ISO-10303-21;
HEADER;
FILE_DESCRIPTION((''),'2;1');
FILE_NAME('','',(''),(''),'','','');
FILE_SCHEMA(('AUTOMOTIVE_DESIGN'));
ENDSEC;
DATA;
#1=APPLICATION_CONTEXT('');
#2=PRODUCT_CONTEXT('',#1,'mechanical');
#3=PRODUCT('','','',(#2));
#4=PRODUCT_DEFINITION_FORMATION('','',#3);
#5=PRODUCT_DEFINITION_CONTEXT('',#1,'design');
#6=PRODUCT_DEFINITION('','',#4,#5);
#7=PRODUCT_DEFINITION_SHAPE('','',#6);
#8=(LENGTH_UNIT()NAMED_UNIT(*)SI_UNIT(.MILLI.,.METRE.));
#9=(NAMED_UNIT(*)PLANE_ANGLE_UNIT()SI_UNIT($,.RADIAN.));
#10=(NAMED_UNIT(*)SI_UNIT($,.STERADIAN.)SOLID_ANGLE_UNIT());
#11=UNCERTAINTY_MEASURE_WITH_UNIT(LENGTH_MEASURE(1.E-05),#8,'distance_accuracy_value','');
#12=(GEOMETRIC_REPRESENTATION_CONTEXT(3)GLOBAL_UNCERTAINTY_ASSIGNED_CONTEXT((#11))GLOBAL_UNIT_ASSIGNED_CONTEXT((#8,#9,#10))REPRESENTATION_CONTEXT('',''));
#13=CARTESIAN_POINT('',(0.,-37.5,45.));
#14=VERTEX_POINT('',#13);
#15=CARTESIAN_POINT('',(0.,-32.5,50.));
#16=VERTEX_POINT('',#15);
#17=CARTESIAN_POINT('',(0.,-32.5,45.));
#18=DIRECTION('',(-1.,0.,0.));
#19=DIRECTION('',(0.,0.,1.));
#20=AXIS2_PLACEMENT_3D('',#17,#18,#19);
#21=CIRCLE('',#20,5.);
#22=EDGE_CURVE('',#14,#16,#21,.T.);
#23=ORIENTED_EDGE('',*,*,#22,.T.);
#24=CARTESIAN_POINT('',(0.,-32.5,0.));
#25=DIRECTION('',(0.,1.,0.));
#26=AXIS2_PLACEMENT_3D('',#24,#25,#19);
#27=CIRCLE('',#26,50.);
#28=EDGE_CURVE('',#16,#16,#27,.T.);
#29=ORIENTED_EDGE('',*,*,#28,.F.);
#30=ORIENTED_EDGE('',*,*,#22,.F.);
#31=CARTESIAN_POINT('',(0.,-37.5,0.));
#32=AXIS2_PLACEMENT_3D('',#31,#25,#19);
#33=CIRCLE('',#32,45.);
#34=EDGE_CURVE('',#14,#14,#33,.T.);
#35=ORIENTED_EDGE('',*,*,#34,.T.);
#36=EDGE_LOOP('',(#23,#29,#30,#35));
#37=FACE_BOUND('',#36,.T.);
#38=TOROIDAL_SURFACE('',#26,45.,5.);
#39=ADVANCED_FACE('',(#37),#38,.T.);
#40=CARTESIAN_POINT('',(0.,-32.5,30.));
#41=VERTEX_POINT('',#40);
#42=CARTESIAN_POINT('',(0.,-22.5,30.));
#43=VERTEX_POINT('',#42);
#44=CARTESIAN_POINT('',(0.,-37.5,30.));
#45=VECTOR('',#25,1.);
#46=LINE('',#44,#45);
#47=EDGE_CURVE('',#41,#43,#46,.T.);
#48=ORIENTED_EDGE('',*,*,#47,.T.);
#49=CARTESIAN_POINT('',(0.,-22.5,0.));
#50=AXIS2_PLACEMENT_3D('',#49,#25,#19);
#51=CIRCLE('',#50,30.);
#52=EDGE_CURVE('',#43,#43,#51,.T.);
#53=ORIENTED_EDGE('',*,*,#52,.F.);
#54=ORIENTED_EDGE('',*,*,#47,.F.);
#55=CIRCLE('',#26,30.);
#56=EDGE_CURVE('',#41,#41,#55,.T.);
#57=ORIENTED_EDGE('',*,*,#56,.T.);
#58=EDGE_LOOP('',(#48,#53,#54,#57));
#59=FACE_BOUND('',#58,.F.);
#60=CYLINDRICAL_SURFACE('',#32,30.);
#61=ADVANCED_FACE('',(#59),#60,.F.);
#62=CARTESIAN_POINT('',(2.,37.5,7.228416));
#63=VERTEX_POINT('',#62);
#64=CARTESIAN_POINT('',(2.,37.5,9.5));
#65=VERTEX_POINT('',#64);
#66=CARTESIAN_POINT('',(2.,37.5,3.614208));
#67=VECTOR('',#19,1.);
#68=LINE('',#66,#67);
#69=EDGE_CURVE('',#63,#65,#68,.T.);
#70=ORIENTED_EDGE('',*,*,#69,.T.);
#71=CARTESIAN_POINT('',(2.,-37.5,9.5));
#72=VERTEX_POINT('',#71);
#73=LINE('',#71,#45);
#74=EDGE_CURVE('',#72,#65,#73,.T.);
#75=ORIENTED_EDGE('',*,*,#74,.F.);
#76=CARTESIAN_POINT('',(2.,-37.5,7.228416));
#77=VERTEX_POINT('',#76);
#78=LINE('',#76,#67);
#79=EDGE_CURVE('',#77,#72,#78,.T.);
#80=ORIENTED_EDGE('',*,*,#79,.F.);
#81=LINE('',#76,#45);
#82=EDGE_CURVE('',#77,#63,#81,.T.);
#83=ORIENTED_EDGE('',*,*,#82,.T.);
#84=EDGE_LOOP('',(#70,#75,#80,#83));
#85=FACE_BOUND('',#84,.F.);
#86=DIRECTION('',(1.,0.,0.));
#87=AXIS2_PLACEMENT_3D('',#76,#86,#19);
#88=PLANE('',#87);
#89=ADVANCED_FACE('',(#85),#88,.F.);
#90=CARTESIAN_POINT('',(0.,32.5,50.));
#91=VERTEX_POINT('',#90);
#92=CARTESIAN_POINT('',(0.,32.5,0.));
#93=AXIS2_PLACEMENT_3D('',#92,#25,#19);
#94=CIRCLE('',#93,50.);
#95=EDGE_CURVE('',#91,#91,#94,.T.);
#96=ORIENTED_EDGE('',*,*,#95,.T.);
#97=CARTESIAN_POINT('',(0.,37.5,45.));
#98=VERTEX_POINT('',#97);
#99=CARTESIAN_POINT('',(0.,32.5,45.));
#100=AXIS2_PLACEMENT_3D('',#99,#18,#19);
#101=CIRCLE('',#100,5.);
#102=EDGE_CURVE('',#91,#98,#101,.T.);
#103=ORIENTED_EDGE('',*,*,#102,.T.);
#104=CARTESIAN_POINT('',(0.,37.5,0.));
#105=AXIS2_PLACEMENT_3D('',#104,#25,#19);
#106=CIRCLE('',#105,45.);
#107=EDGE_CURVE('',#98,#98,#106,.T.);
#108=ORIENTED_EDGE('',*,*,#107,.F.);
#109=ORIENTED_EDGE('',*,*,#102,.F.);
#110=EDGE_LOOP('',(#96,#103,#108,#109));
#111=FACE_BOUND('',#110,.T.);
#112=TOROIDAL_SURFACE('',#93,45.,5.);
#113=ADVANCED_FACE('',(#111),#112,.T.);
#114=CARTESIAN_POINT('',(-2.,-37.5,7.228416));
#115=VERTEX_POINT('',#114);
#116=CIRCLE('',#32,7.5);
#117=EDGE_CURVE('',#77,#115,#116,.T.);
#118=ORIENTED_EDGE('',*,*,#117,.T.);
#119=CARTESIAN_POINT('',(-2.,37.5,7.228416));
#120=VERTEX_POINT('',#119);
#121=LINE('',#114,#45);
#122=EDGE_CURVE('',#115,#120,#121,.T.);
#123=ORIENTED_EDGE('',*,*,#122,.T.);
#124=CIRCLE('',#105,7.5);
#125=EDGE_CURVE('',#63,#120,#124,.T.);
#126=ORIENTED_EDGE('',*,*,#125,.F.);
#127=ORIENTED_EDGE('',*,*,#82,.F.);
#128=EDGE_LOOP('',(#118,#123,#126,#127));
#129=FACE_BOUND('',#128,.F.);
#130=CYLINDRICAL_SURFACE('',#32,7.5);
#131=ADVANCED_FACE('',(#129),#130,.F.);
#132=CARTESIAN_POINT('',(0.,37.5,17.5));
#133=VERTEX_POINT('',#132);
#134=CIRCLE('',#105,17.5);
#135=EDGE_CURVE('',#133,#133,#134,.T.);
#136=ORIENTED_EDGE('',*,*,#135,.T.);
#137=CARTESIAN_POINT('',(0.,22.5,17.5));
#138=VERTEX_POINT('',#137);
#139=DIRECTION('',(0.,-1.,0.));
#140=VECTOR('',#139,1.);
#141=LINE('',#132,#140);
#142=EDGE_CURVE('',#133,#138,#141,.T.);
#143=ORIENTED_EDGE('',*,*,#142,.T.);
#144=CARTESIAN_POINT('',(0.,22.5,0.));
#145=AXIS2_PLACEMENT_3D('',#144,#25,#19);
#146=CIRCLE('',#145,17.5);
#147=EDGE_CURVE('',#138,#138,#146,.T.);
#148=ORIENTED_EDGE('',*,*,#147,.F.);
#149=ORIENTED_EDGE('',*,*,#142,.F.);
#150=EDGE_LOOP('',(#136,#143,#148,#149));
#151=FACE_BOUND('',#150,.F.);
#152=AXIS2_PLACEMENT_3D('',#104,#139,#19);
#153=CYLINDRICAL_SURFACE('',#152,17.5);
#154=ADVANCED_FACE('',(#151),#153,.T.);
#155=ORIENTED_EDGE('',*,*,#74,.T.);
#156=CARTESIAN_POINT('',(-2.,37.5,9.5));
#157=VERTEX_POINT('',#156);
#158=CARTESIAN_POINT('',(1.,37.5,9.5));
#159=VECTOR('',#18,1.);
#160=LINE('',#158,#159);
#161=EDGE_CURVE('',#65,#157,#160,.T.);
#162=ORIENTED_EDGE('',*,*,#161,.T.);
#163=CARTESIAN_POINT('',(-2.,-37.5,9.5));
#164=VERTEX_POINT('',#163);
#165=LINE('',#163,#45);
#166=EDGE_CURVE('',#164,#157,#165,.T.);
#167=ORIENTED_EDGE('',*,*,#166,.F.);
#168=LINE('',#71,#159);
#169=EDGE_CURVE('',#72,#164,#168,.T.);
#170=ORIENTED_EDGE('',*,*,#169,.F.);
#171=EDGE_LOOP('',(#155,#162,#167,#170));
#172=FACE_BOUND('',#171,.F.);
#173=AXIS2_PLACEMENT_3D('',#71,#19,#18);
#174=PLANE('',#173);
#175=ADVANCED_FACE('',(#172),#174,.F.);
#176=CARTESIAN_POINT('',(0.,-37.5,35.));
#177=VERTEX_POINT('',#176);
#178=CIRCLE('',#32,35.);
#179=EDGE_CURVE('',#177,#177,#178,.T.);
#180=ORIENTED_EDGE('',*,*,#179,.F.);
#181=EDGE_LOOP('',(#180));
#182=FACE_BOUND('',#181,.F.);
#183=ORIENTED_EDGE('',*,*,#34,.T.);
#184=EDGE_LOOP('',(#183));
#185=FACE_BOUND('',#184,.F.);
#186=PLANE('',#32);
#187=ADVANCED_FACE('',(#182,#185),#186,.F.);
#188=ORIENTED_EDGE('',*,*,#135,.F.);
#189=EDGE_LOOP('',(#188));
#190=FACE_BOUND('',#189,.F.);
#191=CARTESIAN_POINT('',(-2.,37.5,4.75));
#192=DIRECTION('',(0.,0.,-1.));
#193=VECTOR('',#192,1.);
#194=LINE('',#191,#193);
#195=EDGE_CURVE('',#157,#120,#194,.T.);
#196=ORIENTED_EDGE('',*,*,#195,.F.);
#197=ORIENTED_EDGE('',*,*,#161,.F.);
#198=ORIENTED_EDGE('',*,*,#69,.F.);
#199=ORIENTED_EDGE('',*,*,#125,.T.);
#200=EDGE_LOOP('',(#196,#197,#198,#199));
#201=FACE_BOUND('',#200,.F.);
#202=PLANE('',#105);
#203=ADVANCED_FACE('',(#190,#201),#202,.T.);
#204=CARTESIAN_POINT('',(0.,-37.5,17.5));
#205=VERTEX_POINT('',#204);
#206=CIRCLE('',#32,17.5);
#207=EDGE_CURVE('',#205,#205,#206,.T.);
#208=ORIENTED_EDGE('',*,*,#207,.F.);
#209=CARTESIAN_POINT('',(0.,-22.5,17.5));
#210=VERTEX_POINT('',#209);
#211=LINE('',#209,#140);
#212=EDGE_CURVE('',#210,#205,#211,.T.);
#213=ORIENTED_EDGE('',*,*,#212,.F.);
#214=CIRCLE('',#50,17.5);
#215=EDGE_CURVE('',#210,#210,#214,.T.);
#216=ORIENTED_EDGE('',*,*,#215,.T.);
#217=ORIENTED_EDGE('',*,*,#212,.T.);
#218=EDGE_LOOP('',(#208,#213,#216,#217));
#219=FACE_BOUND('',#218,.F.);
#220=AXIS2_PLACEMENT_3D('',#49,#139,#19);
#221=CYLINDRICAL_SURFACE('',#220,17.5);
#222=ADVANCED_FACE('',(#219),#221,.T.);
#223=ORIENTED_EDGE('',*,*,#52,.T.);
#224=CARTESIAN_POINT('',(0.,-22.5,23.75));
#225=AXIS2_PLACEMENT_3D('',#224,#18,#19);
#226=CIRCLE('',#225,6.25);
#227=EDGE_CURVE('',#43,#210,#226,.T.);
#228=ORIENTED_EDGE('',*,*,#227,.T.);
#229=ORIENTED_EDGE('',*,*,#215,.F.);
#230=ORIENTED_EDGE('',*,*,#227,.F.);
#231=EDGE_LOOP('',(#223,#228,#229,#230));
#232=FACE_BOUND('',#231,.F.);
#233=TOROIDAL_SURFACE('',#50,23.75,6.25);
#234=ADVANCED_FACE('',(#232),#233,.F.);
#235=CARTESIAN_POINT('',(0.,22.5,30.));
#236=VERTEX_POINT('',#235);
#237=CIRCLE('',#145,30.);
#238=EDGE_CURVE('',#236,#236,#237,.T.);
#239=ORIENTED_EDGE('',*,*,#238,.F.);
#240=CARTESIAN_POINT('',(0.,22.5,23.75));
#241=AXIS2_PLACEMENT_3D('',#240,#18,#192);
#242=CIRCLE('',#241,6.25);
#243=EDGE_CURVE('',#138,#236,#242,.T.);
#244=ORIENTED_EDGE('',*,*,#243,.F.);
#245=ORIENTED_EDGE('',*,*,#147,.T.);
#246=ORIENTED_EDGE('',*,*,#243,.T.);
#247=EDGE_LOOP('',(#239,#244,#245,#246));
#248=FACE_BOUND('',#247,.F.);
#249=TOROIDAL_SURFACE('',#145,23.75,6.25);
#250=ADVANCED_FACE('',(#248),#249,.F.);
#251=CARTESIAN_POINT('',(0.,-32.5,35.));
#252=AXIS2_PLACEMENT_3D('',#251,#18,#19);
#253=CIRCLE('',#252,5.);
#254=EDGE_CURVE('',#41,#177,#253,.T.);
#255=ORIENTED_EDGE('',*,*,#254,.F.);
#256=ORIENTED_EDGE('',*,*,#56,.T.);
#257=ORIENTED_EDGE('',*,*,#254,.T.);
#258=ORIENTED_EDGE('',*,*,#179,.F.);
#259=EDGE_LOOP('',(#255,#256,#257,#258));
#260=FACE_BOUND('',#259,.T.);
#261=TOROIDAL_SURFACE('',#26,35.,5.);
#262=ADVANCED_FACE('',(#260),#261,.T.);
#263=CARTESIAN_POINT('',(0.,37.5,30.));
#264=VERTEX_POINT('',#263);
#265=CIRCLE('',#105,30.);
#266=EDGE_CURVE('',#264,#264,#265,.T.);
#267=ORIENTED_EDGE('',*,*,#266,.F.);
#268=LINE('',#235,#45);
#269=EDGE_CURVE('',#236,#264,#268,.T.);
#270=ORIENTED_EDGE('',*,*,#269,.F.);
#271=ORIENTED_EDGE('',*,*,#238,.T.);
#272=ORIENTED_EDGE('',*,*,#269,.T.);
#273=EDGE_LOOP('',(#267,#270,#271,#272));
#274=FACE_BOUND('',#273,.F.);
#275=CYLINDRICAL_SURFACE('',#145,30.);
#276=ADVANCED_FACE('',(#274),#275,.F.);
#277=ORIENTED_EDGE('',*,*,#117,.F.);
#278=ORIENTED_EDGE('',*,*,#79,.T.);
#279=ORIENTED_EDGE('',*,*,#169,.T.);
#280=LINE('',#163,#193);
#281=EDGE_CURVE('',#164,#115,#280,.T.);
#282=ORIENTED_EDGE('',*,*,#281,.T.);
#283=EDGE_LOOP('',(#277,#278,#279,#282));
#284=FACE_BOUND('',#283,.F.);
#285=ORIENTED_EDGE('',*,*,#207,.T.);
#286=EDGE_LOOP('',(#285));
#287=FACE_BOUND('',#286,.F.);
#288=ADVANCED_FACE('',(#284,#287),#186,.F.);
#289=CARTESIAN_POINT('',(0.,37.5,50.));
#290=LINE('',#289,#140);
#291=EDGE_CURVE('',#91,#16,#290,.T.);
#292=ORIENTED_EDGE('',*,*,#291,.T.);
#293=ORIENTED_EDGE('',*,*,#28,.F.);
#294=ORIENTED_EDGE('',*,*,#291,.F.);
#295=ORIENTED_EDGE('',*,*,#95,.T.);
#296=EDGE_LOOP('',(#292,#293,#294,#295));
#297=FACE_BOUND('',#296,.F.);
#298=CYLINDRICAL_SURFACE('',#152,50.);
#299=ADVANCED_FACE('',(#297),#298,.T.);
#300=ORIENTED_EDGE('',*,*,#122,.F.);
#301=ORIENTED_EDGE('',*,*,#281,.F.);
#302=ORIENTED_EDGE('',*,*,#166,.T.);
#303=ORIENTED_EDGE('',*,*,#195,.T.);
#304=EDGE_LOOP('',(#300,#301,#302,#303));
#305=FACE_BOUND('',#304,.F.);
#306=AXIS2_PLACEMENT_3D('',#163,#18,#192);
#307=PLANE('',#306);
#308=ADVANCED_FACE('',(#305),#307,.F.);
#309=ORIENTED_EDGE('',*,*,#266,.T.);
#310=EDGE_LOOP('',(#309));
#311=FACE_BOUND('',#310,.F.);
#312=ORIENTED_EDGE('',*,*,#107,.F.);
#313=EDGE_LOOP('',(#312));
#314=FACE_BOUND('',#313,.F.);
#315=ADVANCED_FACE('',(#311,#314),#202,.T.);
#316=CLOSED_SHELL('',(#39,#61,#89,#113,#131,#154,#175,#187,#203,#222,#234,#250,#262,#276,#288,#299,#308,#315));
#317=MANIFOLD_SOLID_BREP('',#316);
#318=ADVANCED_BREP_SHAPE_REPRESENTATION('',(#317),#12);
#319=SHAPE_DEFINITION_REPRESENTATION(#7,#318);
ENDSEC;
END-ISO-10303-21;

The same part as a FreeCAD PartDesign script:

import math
import FreeCAD as App
import Part
import Sketcher
from FreeCAD import Vector
Q = App.Units.Quantity


def edges_at(feature, points):
    """Names of the edges that pass closest to the given points."""
    edges = feature.Shape.Edges
    near = lambda p: min(range(len(edges)), key=lambda i: edges[i].distToShape(Part.Vertex(*p))[0])
    return sorted({f"Edge{near(p) + 1}" for p in points})

doc = App.newDocument("Part")
body = doc.addObject("PartDesign::Body", "Body")

# Sketch on YZ plane
sketch1 = body.newObject("Sketcher::SketchObject", "Sketch")
sketch1.AttachmentSupport = (doc.getObject("YZ_Plane"), [""])
sketch1.MapMode = "FlatFace"
sketch1.addGeometry([
    Part.LineSegment(Vector(38, 8, 0), Vector(38, 18, 0)),  # 0
    Part.LineSegment(Vector(38, 18, 0), Vector(22, 18, 0)),  # 1
    Part.ArcOfCircle(Part.Circle(Vector(22, 24, 0), Vector(0, 0, 1), 6), math.radians(90), math.radians(270)),  # 2
    Part.LineSegment(Vector(22, 30, 0), Vector(38, 30, 0)),  # 3
    Part.LineSegment(Vector(38, 30, 0), Vector(38, 50, 0)),  # 4
    Part.LineSegment(Vector(38, 50, 0), Vector(-38, 50, 0)),  # 5
    Part.LineSegment(Vector(-38, 50, 0), Vector(-38, 30, 0)),  # 6
    Part.LineSegment(Vector(-38, 30, 0), Vector(-22, 30, 0)),  # 7
    Part.ArcOfCircle(Part.Circle(Vector(-22, 24, 0), Vector(0, 0, 1), 6), math.radians(-90), math.radians(90)),  # 8
    Part.LineSegment(Vector(-22, 18, 0), Vector(-38, 18, 0)),  # 9
    Part.LineSegment(Vector(-38, 18, 0), Vector(-38, 8, 0)),  # 10
    Part.LineSegment(Vector(-38, 8, 0), Vector(38, 8, 0)),  # 11
], False)
sketch1.addConstraint([
    Sketcher.Constraint("Coincident", 0, 2, 1, 1),
    Sketcher.Constraint("Tangent", 1, 2, 2, 2),
    Sketcher.Constraint("Tangent", 2, 1, 3, 1),
    Sketcher.Constraint("Coincident", 3, 2, 4, 1),
    Sketcher.Constraint("Coincident", 4, 2, 5, 1),
    Sketcher.Constraint("Coincident", 5, 2, 6, 1),
    Sketcher.Constraint("Coincident", 6, 2, 7, 1),
    Sketcher.Constraint("Tangent", 7, 2, 8, 2),
    Sketcher.Constraint("Tangent", 8, 1, 9, 1),
    Sketcher.Constraint("Coincident", 9, 2, 10, 1),
    Sketcher.Constraint("Coincident", 10, 2, 11, 1),
    Sketcher.Constraint("Coincident", 11, 2, 0, 1),
    Sketcher.Constraint("Vertical", 0),
    Sketcher.Constraint("Horizontal", 1),
    Sketcher.Constraint("Horizontal", 3),
    Sketcher.Constraint("Vertical", 4),
    Sketcher.Constraint("Horizontal", 5),
    Sketcher.Constraint("Vertical", 6),
    Sketcher.Constraint("Horizontal", 7),
    Sketcher.Constraint("Horizontal", 9),
    Sketcher.Constraint("Vertical", 10),
    Sketcher.Constraint("Horizontal", 11),
    Sketcher.Constraint("Equal", 2, 8),
    Sketcher.Constraint("Symmetric", 2, 3, 8, 3, -2),
    Sketcher.Constraint("Vertical", 0, 2, 3, 2),
    Sketcher.Constraint("Vertical", 6, 2, 9, 2),
    Sketcher.Constraint("Equal", 3, 7),
    Sketcher.Constraint("DistanceX", 1, 2, 1, 1, Q("15 mm")),
    Sketcher.Constraint("DistanceX", 5, 2, 5, 1, Q("75 mm")),
    Sketcher.Constraint("DistanceY", 0, 1, 0, 2, Q("10 mm")),
    Sketcher.Constraint("DistanceY", 4, 1, 4, 2, Q("20 mm")),
    Sketcher.Constraint("Radius", 2, Q("6.25 mm")),
    Sketcher.Constraint("DistanceY", -1, 1, 2, 1, Q("30 mm")),
])
revolution = body.newObject("PartDesign::Revolution", "Revolution")
revolution.Profile = sketch1
revolution.ReferenceAxis = (sketch1, ["H_Axis"])
revolution.Angle = 360

# Sketch on XZ plane
sketch2 = body.newObject("Sketcher::SketchObject", "Sketch001")
sketch2.AttachmentSupport = (doc.getObject("XZ_Plane"), [""])
sketch2.MapMode = "FlatFace"
sketch2.AttachmentOffset = App.Placement(Vector(0, 0, 37.5), App.Rotation())
sketch2.addGeometry([
    Part.LineSegment(Vector(-2, 9.5, 0), Vector(-2, 7.2, 0)),
    Part.ArcOfCircle(Part.Circle(Vector(0, 0, 0), Vector(0, 0, 1), 7.5), math.radians(75), math.radians(105)),
    Part.LineSegment(Vector(2, 7.2, 0), Vector(2, 9.5, 0)),
    Part.LineSegment(Vector(2, 9.5, 0), Vector(-2, 9.5, 0)),
], False)
sketch2.addConstraint([
    Sketcher.Constraint("Coincident", 0, 2, 1, 2),
    Sketcher.Constraint("Coincident", 1, 1, 2, 1),
    Sketcher.Constraint("Coincident", 2, 2, 3, 1),
    Sketcher.Constraint("Coincident", 3, 2, 0, 1),
    Sketcher.Constraint("Vertical", 0),
    Sketcher.Constraint("Vertical", 2),
    Sketcher.Constraint("Horizontal", 3),
    Sketcher.Constraint("Coincident", 1, 3, -1, 1),
    Sketcher.Constraint("Horizontal", 0, 2, 1, 1),
    Sketcher.Constraint("DistanceX", 3, 2, 3, 1, Q("4 mm")),
    Sketcher.Constraint("DistanceY", -1, 1, 2, 2, Q("9.5 mm")),
    Sketcher.Constraint("Radius", 1, Q("7.499996 mm")),
])
pocket1 = body.newObject("PartDesign::Pocket", "Pocket")
pocket1.Profile = sketch2
pocket1.Type = "ThroughAll"
doc.recompute()

fillet = body.newObject("PartDesign::Fillet", "Fillet")
fillet.Base = (pocket1, edges_at(pocket1, [(0, -37.5, -30)]))
fillet.Radius = 5
doc.recompute()

fillet2 = body.newObject("PartDesign::Fillet", "Fillet001")
fillet2.Base = (fillet, edges_at(fillet, [(0, -37.5, -50), (0, 37.5, -50)]))
fillet2.Radius = 5

doc.recompute()
